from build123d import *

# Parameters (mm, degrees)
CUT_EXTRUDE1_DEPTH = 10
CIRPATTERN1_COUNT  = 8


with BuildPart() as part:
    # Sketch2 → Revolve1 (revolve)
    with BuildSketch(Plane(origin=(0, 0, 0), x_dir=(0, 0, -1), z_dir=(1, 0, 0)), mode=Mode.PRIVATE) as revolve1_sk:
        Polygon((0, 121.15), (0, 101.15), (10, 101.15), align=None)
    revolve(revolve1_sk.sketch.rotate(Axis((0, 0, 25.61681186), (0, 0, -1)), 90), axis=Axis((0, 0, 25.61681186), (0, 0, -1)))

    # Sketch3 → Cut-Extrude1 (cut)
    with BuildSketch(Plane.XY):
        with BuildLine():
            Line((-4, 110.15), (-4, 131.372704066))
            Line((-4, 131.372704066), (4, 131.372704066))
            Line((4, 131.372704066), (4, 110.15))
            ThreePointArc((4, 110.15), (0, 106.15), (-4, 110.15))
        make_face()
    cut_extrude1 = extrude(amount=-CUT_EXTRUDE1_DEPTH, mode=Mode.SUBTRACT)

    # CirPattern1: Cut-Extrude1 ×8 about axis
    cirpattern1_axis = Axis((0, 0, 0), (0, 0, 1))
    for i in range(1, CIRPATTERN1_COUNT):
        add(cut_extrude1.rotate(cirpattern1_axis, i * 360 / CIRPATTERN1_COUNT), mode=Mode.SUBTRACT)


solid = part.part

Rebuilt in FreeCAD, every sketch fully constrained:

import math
import FreeCAD as App
import Part
import Sketcher
Q = App.Units.Quantity

doc = App.newDocument("Part")
params = doc.addObject("Spreadsheet::Sheet", "Params")
for row, (alias, value) in enumerate([
    ("sketch1_width", "20 mm"),
    ("sketch1_height", "10 mm"),
    ("revolution_angle", "360 deg"),
    ("sketch2_radius", "4 mm"),
    ("pocket1_length", "10 mm"),
], start=1):
    params.set(f"A{row}", alias)
    params.set(f"B{row}", "=" + value)
    params.setAlias(f"B{row}", alias)

body = doc.addObject("PartDesign::Body", "Body")

sketch1 = body.newObject("Sketcher::SketchObject", "Sketch")
sketch1.AttachmentSupport = (doc.getObject("YZ_Plane"), [""])
sketch1.MapMode = "FlatFace"
sketch1.addGeometry([
    Part.LineSegment(App.Vector(121, 0, 0), App.Vector(101, 0, 0)),
    Part.LineSegment(App.Vector(101, 0, 0), App.Vector(101, -10, 0)),
    Part.LineSegment(App.Vector(101, -10, 0), App.Vector(121, 0, 0)),
], False)
sketch1.addConstraint([
    Sketcher.Constraint("Coincident", 0, 2, 1, 1),
    Sketcher.Constraint("Coincident", 1, 2, 2, 1),
    Sketcher.Constraint("Coincident", 2, 2, 0, 1),
    Sketcher.Constraint("Horizontal", 0),
    Sketcher.Constraint("Vertical", 1),
    Sketcher.Constraint("PointOnObject", 0, 2, -1),
    Sketcher.Constraint("DistanceX", 0, 2, 0, 1, Q("20 mm")),
    Sketcher.Constraint("DistanceY", 1, 2, 1, 1, Q("10 mm")),
    Sketcher.Constraint("DistanceX", -1, 1, 0, 2, Q("101.15 mm")),
])
sketch1.setExpression("Constraints[6]", "Params.sketch1_width")
sketch1.setExpression("Constraints[7]", "Params.sketch1_height")
revolution = body.newObject("PartDesign::Revolution", "Revolution")
revolution.Profile = sketch1
revolution.ReferenceAxis = (sketch1, ["V_Axis"])
revolution.setExpression("Angle", "Params.revolution_angle")

sketch2 = body.newObject("Sketcher::SketchObject", "Sketch001")
sketch2.AttachmentSupport = (doc.getObject("XY_Plane"), [""])
sketch2.MapMode = "FlatFace"
sketch2.addGeometry([
    Part.LineSegment(App.Vector(-4, 131.4, 0), App.Vector(-4, 110.2, 0)),
    Part.ArcOfCircle(Part.Circle(App.Vector(0, 110.2, 0), App.Vector(0, 0, 1), 4), math.radians(180), math.radians(360)),
    Part.LineSegment(App.Vector(4, 110.2, 0), App.Vector(4, 131.4, 0)),
    Part.LineSegment(App.Vector(4, 131.4, 0), App.Vector(-4, 131.4, 0)),
], False)
sketch2.addConstraint([
    Sketcher.Constraint("Tangent", 0, 2, 1, 1),
    Sketcher.Constraint("Tangent", 1, 2, 2, 1),
    Sketcher.Constraint("Coincident", 2, 2, 3, 1),
    Sketcher.Constraint("Coincident", 3, 2, 0, 1),
    Sketcher.Constraint("Vertical", 0),
    Sketcher.Constraint("Vertical", 2),
    Sketcher.Constraint("Horizontal", 3),
    Sketcher.Constraint("PointOnObject", 1, 3, -2),
    Sketcher.Constraint("Radius", 1, Q("4 mm")),
    Sketcher.Constraint("DistanceY", -1, 1, 1, 3, Q("110.15 mm")),
    Sketcher.Constraint("DistanceY", 0, 2, 0, 1, Q("21.222704 mm")),
])
sketch2.setExpression("Constraints[8]", "Params.sketch2_radius")
pocket1 = body.newObject("PartDesign::Pocket", "Pocket")
pocket1.Profile = sketch2
pocket1.setExpression("Length", "Params.pocket1_length")
doc.recompute()

polarpattern = body.newObject("PartDesign::PolarPattern", "PolarPattern")
polarpattern.Originals = [pocket1]
polarpattern.Axis = (doc.getObject("Z_Axis"), [""])
polarpattern.Angle = 360
polarpattern.Occurrences = 8
body.Tip = polarpattern

doc.recompute()
